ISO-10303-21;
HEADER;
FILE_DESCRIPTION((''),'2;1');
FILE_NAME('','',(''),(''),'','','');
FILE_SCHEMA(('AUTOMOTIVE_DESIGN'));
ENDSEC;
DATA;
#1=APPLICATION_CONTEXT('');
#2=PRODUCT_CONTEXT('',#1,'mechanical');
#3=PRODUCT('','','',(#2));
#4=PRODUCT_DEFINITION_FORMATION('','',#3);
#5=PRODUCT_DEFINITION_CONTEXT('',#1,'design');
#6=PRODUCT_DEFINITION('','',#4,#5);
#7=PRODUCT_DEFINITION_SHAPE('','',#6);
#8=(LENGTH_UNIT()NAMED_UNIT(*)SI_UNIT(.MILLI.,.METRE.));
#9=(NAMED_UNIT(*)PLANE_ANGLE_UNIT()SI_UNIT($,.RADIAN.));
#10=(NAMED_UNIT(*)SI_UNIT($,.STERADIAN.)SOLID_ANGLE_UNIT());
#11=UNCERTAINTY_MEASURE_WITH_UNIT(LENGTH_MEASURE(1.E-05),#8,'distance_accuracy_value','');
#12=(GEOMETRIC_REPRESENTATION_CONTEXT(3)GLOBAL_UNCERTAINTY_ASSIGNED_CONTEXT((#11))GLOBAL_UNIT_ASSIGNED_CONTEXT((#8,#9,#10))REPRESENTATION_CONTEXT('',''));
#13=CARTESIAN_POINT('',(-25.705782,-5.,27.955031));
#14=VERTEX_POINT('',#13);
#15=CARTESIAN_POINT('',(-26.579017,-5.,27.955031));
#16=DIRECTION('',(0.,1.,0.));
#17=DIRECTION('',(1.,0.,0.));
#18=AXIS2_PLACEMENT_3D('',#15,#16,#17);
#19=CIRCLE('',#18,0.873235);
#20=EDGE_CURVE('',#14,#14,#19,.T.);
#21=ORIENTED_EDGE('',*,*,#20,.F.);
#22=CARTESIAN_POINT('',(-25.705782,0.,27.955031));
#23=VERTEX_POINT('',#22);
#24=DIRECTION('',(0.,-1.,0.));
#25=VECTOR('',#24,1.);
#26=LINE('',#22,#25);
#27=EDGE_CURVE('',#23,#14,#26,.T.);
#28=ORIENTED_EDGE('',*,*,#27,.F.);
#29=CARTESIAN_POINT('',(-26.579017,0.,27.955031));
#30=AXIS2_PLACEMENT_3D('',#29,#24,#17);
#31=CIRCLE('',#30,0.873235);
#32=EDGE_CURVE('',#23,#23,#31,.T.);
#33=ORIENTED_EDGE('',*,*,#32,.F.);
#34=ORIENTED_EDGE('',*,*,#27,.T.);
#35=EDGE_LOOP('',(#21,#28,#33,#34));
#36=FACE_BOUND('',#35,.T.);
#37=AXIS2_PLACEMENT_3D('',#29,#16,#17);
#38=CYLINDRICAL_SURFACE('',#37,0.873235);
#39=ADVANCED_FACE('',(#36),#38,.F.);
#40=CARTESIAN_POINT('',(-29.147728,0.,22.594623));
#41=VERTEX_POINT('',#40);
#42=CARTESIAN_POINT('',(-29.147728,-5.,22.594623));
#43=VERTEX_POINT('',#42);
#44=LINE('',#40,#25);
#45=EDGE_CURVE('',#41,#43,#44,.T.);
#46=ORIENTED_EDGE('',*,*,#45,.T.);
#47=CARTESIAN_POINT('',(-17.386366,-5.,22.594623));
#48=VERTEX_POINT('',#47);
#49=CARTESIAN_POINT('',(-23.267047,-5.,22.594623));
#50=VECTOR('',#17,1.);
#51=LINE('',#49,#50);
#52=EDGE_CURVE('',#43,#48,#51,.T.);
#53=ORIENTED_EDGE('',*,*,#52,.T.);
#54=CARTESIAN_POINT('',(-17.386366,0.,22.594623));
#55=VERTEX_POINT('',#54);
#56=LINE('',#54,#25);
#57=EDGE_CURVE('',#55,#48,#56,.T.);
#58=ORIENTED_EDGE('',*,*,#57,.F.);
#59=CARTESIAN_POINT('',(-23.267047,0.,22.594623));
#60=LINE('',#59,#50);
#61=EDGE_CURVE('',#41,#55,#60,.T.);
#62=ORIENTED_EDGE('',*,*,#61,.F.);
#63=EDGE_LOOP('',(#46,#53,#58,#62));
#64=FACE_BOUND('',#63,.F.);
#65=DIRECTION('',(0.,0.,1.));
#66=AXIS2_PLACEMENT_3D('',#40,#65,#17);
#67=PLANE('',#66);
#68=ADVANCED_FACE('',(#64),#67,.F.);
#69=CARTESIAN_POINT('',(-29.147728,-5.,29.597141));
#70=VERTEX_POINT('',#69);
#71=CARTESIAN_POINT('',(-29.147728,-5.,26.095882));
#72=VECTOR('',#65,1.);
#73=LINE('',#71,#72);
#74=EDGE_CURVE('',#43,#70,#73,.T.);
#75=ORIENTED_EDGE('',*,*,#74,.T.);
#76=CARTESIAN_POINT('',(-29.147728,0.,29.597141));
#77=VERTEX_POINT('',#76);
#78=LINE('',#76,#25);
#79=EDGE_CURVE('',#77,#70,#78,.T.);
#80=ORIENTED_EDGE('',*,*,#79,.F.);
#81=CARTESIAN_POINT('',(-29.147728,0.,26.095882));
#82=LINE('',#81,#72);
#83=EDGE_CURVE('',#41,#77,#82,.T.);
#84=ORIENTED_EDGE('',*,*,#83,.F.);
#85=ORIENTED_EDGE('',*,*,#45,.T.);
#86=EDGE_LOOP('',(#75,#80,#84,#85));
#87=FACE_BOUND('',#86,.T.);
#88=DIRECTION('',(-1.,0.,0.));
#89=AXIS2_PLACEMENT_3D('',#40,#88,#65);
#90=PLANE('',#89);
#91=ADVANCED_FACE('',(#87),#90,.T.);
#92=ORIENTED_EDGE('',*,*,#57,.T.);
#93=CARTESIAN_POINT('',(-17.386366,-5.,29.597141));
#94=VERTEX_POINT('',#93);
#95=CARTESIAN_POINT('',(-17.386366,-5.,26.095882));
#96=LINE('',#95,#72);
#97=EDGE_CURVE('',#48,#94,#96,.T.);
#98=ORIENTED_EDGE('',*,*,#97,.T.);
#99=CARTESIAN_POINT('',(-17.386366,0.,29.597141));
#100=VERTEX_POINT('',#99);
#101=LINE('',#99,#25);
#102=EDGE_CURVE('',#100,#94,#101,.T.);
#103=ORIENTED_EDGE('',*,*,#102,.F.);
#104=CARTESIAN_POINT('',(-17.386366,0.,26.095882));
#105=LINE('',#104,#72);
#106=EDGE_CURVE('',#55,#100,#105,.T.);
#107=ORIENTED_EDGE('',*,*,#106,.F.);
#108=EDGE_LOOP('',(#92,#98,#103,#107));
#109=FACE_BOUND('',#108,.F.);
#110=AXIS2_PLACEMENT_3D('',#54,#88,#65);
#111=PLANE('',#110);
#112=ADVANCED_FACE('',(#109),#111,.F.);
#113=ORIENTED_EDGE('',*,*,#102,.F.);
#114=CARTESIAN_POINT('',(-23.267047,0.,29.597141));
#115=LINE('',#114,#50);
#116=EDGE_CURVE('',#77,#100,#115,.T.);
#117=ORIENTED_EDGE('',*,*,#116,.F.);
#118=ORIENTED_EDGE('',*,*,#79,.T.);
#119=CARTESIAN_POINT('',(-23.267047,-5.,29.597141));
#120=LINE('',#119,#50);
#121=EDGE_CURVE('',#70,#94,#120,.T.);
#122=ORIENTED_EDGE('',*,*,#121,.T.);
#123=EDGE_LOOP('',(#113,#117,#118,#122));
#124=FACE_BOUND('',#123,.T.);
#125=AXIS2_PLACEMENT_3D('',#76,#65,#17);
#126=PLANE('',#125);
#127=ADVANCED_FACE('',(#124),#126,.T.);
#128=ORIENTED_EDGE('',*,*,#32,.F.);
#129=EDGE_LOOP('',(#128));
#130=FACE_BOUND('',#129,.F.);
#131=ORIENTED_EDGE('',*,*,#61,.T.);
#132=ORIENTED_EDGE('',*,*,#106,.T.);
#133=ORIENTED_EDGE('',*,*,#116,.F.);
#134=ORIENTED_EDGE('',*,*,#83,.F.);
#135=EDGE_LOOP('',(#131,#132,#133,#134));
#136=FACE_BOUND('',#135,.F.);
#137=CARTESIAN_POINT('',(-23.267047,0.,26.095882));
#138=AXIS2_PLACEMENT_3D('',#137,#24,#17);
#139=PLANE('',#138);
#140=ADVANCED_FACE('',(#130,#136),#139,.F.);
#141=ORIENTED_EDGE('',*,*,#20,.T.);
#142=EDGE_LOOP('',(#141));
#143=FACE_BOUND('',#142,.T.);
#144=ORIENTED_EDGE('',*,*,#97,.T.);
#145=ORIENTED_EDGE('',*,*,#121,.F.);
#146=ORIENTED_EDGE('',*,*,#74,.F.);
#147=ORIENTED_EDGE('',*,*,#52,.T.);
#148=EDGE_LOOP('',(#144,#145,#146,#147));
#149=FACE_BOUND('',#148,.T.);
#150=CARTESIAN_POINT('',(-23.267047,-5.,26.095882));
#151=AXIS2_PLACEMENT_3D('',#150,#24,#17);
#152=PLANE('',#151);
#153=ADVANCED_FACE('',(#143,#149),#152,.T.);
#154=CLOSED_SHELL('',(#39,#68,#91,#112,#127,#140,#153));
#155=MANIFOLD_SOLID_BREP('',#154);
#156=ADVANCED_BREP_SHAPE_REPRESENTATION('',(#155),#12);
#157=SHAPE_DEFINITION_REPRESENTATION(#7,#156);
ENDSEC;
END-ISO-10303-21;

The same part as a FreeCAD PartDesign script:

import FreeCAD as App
import Part
import Sketcher

V = App.Vector
Q = App.Units.Quantity


def add_polygon(sketch, points):
    """Adds a closed chain of lines whose ends are joined by coincident constraints."""
    first, n = sketch.GeometryCount, len(points)
    for a, b in zip(points, points[1:] + points[:1]):
        sketch.addGeometry(Part.LineSegment(App.Vector(*a, 0), App.Vector(*b, 0)), False)
    for i in range(n):
        sketch.addConstraint(Sketcher.Constraint("Coincident", first + i, 2, first + (i + 1) % n, 1))

doc = App.newDocument("Part")
body = doc.addObject("PartDesign::Body", "Body")

sketch1 = doc.addObject("Sketcher::SketchObject", "Sketch")
body.addObject(sketch1)
sketch1.AttachmentSupport = (doc.XZ_Plane, [""])
sketch1.MapMode = "FlatFace"
add_polygon(sketch1, [(-29.147728, 29.597141), (-29.147728, 22.594623), (-17.386366, 22.594623), (-17.386366, 29.597141)])
sketch1.addConstraint([
    Sketcher.Constraint("Vertical", 0),
    Sketcher.Constraint("Horizontal", 1),
    Sketcher.Constraint("Vertical", 2),
    Sketcher.Constraint("Horizontal", 3),
    Sketcher.Constraint("DistanceY", 0, 2, 0, 1, Q("7.002518 mm")),
    Sketcher.Constraint("DistanceX", 1, 1, 1, 2, Q("11.761363 mm")),
    Sketcher.Constraint("DistanceX", 0, 2, -1, 1, Q("29.147728 mm")),
    Sketcher.Constraint("DistanceY", -1, 1, 2, 2, Q("29.597141 mm")),
])
pad1 = doc.addObject("PartDesign::Pad", "Pad")
body.addObject(pad1)
pad1.Profile = sketch1
pad1.Length = 5

sketch2 = doc.addObject("Sketcher::SketchObject", "Sketch001")
body.addObject(sketch2)
sketch2.AttachmentSupport = (doc.XZ_Plane, [""])
sketch2.MapMode = "FlatFace"
sketch2.addGeometry(Part.Circle(V(-26.579017, 27.955031, 0), V(0, 0, 1), 0.873235), False)
sketch2.addConstraint([
    Sketcher.Constraint("Diameter", 0, Q("1.74647 mm")),
    Sketcher.Constraint("DistanceY", -1, 1, 0, 3, Q("27.955031 mm")),
    Sketcher.Constraint("DistanceX", 0, 3, -1, 1, Q("26.579017 mm")),
])
pocket1 = doc.addObject("PartDesign::Pocket", "Pocket")
body.addObject(pocket1)
pocket1.Profile = sketch2
pocket1.Length = 25
pocket1.Reversed = True

doc.recompute()
